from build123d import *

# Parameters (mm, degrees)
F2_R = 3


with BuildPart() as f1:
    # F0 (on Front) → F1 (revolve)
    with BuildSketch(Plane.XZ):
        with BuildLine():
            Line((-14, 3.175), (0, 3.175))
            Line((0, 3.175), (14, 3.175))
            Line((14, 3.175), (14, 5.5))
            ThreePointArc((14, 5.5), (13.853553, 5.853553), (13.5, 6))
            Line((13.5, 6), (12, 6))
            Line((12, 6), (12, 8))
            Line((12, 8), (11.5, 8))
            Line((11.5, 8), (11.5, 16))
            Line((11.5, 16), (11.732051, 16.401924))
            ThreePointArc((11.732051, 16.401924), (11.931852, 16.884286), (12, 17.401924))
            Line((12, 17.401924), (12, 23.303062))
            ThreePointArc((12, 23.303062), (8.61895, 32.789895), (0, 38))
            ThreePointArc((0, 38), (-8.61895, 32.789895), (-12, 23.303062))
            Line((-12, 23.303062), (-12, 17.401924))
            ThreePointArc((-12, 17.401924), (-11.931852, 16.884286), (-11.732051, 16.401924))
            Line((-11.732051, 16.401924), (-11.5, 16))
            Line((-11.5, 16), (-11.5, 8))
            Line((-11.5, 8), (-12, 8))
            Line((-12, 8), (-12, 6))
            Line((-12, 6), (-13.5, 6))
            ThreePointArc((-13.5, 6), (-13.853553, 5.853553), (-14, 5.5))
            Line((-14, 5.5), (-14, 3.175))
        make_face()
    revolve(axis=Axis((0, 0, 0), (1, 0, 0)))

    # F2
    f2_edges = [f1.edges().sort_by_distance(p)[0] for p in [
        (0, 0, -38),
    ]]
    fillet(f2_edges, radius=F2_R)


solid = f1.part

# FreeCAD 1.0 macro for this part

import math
import FreeCAD as App
import Part
import Sketcher

V = App.Vector
Q = App.Units.Quantity


def edges_at(feature, points):
    """Names of the edges that pass closest to the given points."""
    edges = feature.Shape.Edges
    near = lambda p: min(range(len(edges)), key=lambda i: edges[i].distToShape(Part.Vertex(*p))[0])
    return sorted({f"Edge{near(p) + 1}" for p in points})

doc = App.newDocument("Part")
body = doc.addObject("PartDesign::Body", "Body")

sketch1 = doc.addObject("Sketcher::SketchObject", "Sketch")
body.addObject(sketch1)
sketch1.AttachmentSupport = (doc.XZ_Plane, [""])
sketch1.MapMode = "FlatFace"
sketch1.addGeometry(Part.LineSegment(V(-14, 3.175, 0), V(14, 3.175, 0)), False)
sketch1.addGeometry(Part.LineSegment(V(14, 3.175, 0), V(14, 5.5, 0)), False)
sketch1.addGeometry(Part.ArcOfCircle(Part.Circle(V(13.499999, 5.499999, 0), V(0, 0, 1), 0.500001), math.radians(0.000153), math.radians(89.999847)), False)
sketch1.addGeometry(Part.LineSegment(V(13.5, 6, 0), V(12, 6, 0)), False)
sketch1.addGeometry(Part.LineSegment(V(12, 6, 0), V(12, 8, 0)), False)
sketch1.addGeometry(Part.LineSegment(V(12, 8, 0), V(11.5, 8, 0)), False)
sketch1.addGeometry(Part.LineSegment(V(11.5, 8, 0), V(11.5, 16, 0)), False)
sketch1.addGeometry(Part.LineSegment(V(11.5, 16, 0), V(11.732051, 16.401924, 0)), False)
sketch1.addGeometry(Part.ArcOfCircle(Part.Circle(V(10.000006, 17.401922, 0), V(0, 0, 1), 1.999994), math.radians(-30.000038), math.radians(0.000059)), False)
sketch1.addGeometry(Part.LineSegment(V(12, 17.401924, 0), V(12, 23.303062, 0)), False)
sketch1.addGeometry(Part.ArcOfCircle(Part.Circle(V(-2.999999, 23.303062, 0), V(0, 0, 1), 14.999999), math.radians(-0.000001), math.radians(78.463044)), False)
sketch1.addGeometry(Part.ArcOfCircle(Part.Circle(V(2.999999, 23.303062, 0), V(0, 0, 1), 14.999999), math.radians(101.536956), math.radians(180.000001)), False)
sketch1.addGeometry(Part.LineSegment(V(-12, 23.303062, 0), V(-12, 17.401924, 0)), False)
sketch1.addGeometry(Part.ArcOfCircle(Part.Circle(V(-10.000006, 17.401922, 0), V(0, 0, 1), 1.999994), math.radians(179.999941), math.radians(210.000038)), False)
sketch1.addGeometry(Part.LineSegment(V(-11.732051, 16.401924, 0), V(-11.5, 16, 0)), False)
sketch1.addGeometry(Part.LineSegment(V(-11.5, 16, 0), V(-11.5, 8, 0)), False)
sketch1.addGeometry(Part.LineSegment(V(-11.5, 8, 0), V(-12, 8, 0)), False)
sketch1.addGeometry(Part.LineSegment(V(-12, 8, 0), V(-12, 6, 0)), False)
sketch1.addGeometry(Part.LineSegment(V(-12, 6, 0), V(-13.5, 6, 0)), False)
sketch1.addGeometry(Part.ArcOfCircle(Part.Circle(V(-13.499999, 5.499999, 0), V(0, 0, 1), 0.500001), math.radians(90.000153), math.radians(179.999847)), False)
sketch1.addGeometry(Part.LineSegment(V(-14, 5.5, 0), V(-14, 3.175, 0)), False)
sketch1.addConstraint(Sketcher.Constraint("Coincident", 0, 2, 1, 1))
sketch1.addConstraint(Sketcher.Constraint("Coincident", 1, 2, 2, 1))
sketch1.addConstraint(Sketcher.Constraint("Coincident", 2, 2, 3, 1))
sketch1.addConstraint(Sketcher.Constraint("Coincident", 3, 2, 4, 1))
sketch1.addConstraint(Sketcher.Constraint("Coincident", 4, 2, 5, 1))
sketch1.addConstraint(Sketcher.Constraint("Coincident", 5, 2, 6, 1))
sketch1.addConstraint(Sketcher.Constraint("Coincident", 6, 2, 7, 1))
sketch1.addConstraint(Sketcher.Constraint("Tangent", 7, 2, 8, 1))
sketch1.addConstraint(Sketcher.Constraint("Tangent", 8, 2, 9, 1))
sketch1.addConstraint(Sketcher.Constraint("Tangent", 9, 2, 10, 1))
sketch1.addConstraint(Sketcher.Constraint("Coincident", 10, 2, 11, 1))
sketch1.addConstraint(Sketcher.Constraint("Tangent", 11, 2, 12, 1))
sketch1.addConstraint(Sketcher.Constraint("Tangent", 12, 2, 13, 1))
sketch1.addConstraint(Sketcher.Constraint("Tangent", 13, 2, 14, 1))
sketch1.addConstraint(Sketcher.Constraint("Coincident", 14, 2, 15, 1))
sketch1.addConstraint(Sketcher.Constraint("Coincident", 15, 2, 16, 1))
sketch1.addConstraint(Sketcher.Constraint("Coincident", 16, 2, 17, 1))
sketch1.addConstraint(Sketcher.Constraint("Coincident", 17, 2, 18, 1))
sketch1.addConstraint(Sketcher.Constraint("Coincident", 18, 2, 19, 1))
sketch1.addConstraint(Sketcher.Constraint("Coincident", 19, 2, 20, 1))
sketch1.addConstraint(Sketcher.Constraint("Coincident", 20, 2, 0, 1))
sketch1.addConstraint(Sketcher.Constraint("Horizontal", 0))
sketch1.addConstraint(Sketcher.Constraint("Vertical", 1))
sketch1.addConstraint(Sketcher.Constraint("Horizontal", 3))
sketch1.addConstraint(Sketcher.Constraint("Vertical", 4))
sketch1.addConstraint(Sketcher.Constraint("Horizontal", 5))
sketch1.addConstraint(Sketcher.Constraint("Vertical", 6))
sketch1.addConstraint(Sketcher.Constraint("Vertical", 9))
sketch1.addConstraint(Sketcher.Constraint("Vertical", 12))
sketch1.addConstraint(Sketcher.Constraint("Vertical", 15))
sketch1.addConstraint(Sketcher.Constraint("Horizontal", 16))
sketch1.addConstraint(Sketcher.Constraint("Vertical", 17))
sketch1.addConstraint(Sketcher.Constraint("Horizontal", 18))
sketch1.addConstraint(Sketcher.Constraint("Vertical", 20))
sketch1.addConstraint(Sketcher.Constraint("Equal", 10, 11))
sketch1.addConstraint(Sketcher.Constraint("Equal", 8, 13))
sketch1.addConstraint(Sketcher.Constraint("Equal", 2, 19))
sketch1.addConstraint(Sketcher.Constraint("Symmetric", 10, 3, 11, 3, -2))
sketch1.addConstraint(Sketcher.Constraint("Symmetric", 2, 3, 19, 3, -2))
sketch1.addConstraint(Sketcher.Constraint("Symmetric", 7, 2, 13, 2, -2))
sketch1.addConstraint(Sketcher.Constraint("Symmetric", 5, 2, 15, 2, -2))
sketch1.addConstraint(Sketcher.Constraint("Horizontal", 19, 3, 1, 2))
sketch1.addConstraint(Sketcher.Constraint("Horizontal", 1, 2, 19, 2))
sketch1.addConstraint(Sketcher.Constraint("Vertical", 4, 2, 8, 2))
sketch1.addConstraint(Sketcher.Constraint("Vertical", 12, 2, 16, 2))
sketch1.addConstraint(Sketcher.Constraint("Vertical", 19, 3, 18, 2))
sketch1.addConstraint(Sketcher.Constraint("Equal", 3, 18))
sketch1.addConstraint(Sketcher.Constraint("Radius", 10, Q("14.999999 mm")))
sketch1.addConstraint(Sketcher.Constraint("Radius", 2, Q("0.500001 mm")))
sketch1.addConstraint(Sketcher.Constraint("DistanceX", 0, 1, 0, 2, Q("28 mm")))
sketch1.addConstraint(Sketcher.Constraint("DistanceY", 4, 1, 4, 2, Q("2 mm")))
sketch1.addConstraint(Sketcher.Constraint("DistanceY", 6, 1, 6, 2, Q("8 mm")))
sketch1.addConstraint(Sketcher.Constraint("Angle", 7, Q("59.999992 deg")))
sketch1.addConstraint(Sketcher.Constraint("DistanceX", 3, 2, 3, 1, Q("1.5 mm")))
sketch1.addConstraint(Sketcher.Constraint("DistanceX", 5, 2, 5, 1, Q("0.5 mm")))
sketch1.addConstraint(Sketcher.Constraint("DistanceY", -1, 1, 2, 2, Q("6 mm")))
sketch1.addConstraint(Sketcher.Constraint("DistanceY", -1, 1, 10, 2, Q("38 mm")))
sketch1.addConstraint(Sketcher.Constraint("DistanceY", 7, 2, 8, 2, Q("1 mm")))
sketch1.addConstraint(Sketcher.Constraint("DistanceY", 1, 1, 1, 2, Q("2.325 mm")))
revolution = doc.addObject("PartDesign::Revolution", "Revolution")
body.addObject(revolution)
revolution.Profile = sketch1
revolution.ReferenceAxis = (sketch1, ["H_Axis"])
revolution.Angle = 360
doc.recompute()

fillet = doc.addObject("PartDesign::Fillet", "Fillet")
body.addObject(fillet)
fillet.Base = (revolution, edges_at(revolution, [(0, 0, -38)]))
fillet.Radius = 3

doc.recompute()
